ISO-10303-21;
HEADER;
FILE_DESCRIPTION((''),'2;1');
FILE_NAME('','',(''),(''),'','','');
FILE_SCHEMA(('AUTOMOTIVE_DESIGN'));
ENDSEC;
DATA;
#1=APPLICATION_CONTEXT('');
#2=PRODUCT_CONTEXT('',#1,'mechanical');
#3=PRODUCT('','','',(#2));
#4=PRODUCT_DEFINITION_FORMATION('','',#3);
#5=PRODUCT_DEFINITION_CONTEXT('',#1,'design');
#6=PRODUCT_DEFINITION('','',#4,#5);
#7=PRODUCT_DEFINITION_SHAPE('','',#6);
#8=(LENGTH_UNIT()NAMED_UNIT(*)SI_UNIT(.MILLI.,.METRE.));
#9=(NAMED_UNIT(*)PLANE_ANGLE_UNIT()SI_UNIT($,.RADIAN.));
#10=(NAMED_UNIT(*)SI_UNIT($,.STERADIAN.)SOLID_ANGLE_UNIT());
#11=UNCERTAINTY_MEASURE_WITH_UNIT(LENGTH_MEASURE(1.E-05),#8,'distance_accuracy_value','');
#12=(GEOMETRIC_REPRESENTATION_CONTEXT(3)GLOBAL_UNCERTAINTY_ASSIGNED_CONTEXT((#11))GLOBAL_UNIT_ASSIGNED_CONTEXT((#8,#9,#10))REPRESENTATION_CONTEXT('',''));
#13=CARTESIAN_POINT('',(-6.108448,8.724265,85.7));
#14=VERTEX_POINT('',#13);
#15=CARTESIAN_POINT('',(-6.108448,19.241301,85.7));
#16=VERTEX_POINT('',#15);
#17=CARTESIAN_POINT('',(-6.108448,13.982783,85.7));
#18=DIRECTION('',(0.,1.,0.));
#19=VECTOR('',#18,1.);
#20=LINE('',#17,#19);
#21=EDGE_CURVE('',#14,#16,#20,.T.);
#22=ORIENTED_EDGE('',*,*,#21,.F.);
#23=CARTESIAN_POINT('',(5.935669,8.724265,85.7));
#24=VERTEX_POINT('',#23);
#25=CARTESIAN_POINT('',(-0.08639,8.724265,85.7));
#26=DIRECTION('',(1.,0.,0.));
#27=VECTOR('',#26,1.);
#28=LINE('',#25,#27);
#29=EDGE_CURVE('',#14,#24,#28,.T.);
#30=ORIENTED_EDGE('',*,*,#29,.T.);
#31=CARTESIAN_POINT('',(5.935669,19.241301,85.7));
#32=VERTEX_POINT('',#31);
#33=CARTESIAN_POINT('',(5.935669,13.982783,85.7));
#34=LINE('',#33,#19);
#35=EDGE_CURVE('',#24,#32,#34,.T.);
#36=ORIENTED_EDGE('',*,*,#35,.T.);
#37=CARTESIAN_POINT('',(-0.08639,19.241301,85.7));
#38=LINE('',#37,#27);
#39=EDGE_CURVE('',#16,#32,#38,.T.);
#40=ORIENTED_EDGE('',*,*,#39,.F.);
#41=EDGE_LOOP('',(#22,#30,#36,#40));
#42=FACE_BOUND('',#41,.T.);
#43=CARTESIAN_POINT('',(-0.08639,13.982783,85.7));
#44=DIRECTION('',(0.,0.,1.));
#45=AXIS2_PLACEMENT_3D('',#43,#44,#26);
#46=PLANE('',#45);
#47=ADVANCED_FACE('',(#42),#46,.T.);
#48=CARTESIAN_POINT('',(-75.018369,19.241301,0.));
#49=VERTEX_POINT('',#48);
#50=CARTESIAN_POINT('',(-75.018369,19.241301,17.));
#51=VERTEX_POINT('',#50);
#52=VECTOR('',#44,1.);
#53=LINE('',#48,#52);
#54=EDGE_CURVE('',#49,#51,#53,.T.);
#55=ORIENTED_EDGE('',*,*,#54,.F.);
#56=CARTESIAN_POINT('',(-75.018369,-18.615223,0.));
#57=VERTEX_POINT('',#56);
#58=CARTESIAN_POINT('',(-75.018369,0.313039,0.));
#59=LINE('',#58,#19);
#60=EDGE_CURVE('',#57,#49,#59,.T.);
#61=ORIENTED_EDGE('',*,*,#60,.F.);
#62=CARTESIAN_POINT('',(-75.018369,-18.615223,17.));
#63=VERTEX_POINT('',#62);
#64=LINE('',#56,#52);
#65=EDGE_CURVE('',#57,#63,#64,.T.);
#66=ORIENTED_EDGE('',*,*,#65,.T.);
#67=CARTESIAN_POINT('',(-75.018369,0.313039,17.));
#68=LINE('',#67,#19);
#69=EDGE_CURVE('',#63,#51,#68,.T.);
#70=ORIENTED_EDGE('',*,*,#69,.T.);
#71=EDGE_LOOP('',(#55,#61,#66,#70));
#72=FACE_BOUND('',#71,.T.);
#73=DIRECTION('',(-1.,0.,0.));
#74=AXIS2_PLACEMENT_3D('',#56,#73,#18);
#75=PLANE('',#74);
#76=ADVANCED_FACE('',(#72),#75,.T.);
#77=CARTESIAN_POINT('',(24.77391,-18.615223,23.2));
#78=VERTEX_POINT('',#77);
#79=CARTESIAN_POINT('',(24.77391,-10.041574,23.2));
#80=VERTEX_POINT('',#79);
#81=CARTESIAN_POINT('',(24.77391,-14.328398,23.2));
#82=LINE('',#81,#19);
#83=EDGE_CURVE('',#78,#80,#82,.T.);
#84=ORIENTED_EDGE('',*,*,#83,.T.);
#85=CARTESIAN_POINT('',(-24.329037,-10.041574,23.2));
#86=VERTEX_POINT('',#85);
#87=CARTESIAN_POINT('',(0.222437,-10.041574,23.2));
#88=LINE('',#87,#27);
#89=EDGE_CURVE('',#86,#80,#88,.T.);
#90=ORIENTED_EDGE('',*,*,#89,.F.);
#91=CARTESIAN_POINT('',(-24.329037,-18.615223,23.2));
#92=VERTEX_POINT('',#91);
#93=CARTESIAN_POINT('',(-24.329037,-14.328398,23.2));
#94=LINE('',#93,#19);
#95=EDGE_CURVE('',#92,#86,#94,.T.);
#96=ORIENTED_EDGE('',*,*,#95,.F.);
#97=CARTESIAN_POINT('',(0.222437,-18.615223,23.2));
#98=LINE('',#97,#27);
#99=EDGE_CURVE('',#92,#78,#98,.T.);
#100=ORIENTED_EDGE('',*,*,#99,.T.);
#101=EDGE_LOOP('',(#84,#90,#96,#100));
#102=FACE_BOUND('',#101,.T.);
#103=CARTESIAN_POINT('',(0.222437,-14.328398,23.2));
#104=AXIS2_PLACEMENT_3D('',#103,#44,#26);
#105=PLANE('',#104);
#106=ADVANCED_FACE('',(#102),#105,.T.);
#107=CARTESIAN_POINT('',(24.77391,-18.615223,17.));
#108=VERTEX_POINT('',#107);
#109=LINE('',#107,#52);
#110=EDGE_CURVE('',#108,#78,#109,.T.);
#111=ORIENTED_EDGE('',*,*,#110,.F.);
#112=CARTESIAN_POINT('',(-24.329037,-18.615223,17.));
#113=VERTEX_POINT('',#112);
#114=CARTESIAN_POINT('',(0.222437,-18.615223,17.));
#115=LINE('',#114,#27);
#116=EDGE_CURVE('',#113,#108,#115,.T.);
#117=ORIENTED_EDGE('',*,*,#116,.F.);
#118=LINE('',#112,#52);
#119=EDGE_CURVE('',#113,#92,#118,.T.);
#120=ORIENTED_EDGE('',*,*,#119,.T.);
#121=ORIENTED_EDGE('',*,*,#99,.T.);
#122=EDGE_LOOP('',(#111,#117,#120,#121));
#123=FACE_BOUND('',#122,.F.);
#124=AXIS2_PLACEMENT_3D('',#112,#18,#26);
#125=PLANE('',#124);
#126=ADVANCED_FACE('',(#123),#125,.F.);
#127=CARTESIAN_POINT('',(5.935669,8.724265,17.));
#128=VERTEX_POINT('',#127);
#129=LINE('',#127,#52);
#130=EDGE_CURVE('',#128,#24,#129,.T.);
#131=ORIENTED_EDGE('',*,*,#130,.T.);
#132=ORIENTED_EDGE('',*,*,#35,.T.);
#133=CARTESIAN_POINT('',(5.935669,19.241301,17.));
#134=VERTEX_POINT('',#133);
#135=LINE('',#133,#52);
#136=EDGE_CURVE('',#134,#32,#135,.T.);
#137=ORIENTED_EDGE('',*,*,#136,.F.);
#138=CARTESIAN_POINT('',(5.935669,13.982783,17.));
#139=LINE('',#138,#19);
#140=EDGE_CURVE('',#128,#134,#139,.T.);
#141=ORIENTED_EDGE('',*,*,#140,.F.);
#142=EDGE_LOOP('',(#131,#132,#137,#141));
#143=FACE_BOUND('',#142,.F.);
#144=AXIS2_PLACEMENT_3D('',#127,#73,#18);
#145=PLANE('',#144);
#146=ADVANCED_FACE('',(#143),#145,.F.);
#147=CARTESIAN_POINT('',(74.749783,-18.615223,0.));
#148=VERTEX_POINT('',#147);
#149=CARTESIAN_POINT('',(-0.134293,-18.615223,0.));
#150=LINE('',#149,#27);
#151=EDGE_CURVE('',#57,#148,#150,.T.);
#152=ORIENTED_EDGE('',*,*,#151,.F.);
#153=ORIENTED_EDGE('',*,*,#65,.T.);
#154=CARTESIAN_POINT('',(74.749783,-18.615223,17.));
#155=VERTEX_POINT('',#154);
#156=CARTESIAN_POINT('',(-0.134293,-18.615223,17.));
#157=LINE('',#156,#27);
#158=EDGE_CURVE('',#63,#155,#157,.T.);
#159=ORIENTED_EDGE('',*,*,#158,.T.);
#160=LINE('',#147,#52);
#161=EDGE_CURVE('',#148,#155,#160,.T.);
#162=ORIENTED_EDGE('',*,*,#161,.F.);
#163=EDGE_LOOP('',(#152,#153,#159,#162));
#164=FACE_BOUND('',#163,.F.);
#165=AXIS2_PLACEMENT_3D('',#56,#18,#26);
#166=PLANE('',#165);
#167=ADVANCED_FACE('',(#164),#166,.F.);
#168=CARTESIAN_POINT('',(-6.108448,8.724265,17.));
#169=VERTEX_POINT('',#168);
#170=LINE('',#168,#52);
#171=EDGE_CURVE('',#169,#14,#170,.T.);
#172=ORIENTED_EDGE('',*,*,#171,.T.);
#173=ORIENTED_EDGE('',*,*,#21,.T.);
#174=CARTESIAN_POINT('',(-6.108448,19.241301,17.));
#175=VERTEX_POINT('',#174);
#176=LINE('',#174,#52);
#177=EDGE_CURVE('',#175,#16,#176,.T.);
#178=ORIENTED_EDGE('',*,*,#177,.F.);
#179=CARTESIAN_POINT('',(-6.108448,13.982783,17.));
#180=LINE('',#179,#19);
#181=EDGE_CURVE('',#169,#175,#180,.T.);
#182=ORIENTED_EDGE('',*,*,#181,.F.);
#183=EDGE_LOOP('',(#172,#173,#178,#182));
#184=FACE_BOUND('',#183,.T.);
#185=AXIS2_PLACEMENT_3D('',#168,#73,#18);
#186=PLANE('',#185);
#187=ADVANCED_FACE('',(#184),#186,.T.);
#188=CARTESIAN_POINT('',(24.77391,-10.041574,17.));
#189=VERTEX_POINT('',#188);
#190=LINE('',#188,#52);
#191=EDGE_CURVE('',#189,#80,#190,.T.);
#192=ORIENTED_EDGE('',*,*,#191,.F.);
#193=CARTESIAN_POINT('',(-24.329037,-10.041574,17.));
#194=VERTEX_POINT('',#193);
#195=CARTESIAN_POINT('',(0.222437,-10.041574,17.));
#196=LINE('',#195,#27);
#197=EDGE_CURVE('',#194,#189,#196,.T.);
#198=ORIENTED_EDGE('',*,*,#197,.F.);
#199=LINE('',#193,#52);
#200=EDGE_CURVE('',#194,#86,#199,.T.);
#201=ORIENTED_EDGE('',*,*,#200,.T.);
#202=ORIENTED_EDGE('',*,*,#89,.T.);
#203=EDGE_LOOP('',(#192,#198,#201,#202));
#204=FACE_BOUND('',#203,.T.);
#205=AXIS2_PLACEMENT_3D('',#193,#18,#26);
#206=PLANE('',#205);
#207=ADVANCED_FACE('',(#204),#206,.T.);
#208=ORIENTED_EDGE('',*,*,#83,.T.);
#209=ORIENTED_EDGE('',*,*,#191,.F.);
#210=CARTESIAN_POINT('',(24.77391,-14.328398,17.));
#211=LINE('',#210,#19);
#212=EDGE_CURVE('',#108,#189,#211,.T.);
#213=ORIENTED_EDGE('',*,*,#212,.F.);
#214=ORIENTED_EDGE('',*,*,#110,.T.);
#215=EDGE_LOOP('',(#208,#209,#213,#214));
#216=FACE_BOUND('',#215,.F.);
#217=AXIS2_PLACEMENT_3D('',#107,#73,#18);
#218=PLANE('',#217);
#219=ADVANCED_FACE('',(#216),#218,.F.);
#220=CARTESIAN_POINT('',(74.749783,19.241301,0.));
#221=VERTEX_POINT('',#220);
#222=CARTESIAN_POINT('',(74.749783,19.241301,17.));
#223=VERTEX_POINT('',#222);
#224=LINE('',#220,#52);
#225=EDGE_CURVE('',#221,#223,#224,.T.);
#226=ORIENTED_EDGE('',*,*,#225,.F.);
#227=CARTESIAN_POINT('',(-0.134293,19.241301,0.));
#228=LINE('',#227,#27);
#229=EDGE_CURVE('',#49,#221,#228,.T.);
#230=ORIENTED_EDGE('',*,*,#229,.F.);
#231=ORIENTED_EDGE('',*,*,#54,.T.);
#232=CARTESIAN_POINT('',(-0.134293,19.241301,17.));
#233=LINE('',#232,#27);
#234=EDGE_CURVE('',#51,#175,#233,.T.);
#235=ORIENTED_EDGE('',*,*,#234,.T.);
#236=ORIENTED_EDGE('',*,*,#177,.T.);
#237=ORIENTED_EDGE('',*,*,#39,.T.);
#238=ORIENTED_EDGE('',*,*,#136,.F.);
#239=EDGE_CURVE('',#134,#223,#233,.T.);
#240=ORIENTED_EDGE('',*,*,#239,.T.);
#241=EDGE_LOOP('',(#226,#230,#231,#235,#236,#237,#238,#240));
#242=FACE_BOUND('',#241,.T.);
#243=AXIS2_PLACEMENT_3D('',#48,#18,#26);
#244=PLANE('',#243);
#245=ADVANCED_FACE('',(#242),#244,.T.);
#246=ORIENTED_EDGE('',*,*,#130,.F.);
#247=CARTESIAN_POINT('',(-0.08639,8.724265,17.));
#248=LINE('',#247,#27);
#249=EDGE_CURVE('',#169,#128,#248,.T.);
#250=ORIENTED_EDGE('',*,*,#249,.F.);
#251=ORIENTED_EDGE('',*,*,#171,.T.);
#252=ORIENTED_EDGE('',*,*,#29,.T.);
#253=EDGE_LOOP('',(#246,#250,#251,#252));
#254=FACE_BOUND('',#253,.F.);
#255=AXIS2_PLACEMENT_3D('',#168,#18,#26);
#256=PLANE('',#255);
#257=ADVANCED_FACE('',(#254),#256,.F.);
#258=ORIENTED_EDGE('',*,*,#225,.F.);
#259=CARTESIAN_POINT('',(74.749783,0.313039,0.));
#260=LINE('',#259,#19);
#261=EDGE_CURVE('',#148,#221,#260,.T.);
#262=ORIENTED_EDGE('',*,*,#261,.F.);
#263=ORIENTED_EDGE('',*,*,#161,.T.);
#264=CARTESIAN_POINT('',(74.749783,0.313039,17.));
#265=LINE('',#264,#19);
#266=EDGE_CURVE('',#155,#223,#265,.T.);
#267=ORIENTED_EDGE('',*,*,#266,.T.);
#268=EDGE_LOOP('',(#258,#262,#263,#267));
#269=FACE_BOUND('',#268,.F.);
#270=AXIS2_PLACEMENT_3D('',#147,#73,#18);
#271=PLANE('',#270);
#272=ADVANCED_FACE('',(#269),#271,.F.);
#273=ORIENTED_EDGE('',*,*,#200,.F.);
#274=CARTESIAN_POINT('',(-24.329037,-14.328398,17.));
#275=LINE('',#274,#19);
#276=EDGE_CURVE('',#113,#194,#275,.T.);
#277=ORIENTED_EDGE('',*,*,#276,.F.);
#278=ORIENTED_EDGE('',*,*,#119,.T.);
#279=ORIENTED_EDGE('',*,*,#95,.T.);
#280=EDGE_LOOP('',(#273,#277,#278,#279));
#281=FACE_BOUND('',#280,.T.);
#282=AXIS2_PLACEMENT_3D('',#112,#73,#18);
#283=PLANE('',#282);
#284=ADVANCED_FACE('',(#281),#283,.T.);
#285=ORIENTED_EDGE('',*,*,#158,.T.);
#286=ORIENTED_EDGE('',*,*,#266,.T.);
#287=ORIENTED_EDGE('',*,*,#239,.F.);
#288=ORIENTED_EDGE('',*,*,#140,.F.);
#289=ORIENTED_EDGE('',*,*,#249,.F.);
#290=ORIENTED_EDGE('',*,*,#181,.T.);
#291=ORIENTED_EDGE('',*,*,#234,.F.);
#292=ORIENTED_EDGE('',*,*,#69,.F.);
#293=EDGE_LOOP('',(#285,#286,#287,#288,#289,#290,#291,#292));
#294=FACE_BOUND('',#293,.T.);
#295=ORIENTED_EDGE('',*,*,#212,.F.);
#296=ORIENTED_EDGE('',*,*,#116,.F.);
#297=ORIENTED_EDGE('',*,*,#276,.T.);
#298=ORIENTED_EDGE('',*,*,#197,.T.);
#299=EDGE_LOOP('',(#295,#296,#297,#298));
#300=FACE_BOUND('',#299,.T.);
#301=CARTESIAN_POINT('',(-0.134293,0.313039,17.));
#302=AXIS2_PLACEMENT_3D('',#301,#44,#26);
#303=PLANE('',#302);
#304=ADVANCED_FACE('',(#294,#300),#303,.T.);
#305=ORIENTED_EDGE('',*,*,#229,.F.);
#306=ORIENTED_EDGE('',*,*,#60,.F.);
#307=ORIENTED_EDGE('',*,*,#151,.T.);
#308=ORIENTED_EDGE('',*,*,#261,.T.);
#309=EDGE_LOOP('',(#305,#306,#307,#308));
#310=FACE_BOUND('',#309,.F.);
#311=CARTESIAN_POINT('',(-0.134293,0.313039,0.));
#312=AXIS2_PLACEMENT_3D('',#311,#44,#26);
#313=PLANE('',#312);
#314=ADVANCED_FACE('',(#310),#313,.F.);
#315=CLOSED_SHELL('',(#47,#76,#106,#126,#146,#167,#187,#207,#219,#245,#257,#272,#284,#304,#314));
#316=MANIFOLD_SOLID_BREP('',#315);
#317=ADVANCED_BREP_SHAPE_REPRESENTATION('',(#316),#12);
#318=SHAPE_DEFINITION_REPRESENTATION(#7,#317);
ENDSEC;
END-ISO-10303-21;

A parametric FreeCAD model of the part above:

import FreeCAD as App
import Part
import Sketcher

V = App.Vector
Q = App.Units.Quantity


def add_polygon(sketch, points):
    """Adds a closed chain of lines whose ends are joined by coincident constraints."""
    first, n = sketch.GeometryCount, len(points)
    for a, b in zip(points, points[1:] + points[:1]):
        sketch.addGeometry(Part.LineSegment(App.Vector(*a, 0), App.Vector(*b, 0)), False)
    for i in range(n):
        sketch.addConstraint(Sketcher.Constraint("Coincident", first + i, 2, first + (i + 1) % n, 1))

doc = App.newDocument("Part")
body = doc.addObject("PartDesign::Body", "Body")

sketch1 = body.newObject("Sketcher::SketchObject", "Sketch")
sketch1.AttachmentSupport = (doc.getObject("XY_Plane"), [""])
sketch1.MapMode = "FlatFace"
add_polygon(sketch1, [(-75, 19), (-75, -19), (75, -19), (75, 19)])
sketch1.addConstraint([
    Sketcher.Constraint("Vertical", 0),
    Sketcher.Constraint("Horizontal", 1),
    Sketcher.Constraint("Vertical", 2),
    Sketcher.Constraint("Horizontal", 3),
    Sketcher.Constraint("DistanceX", 1, 1, 1, 2, Q("149.768152 mm")),
    Sketcher.Constraint("DistanceY", -1, 1, 2, 2, Q("19.241301 mm")),
    Sketcher.Constraint("DistanceY", 0, 2, 0, 1, Q("37.856524 mm")),
    Sketcher.Constraint("DistanceX", 0, 2, -1, 1, Q("75.018369 mm")),
])
pad1 = body.newObject("PartDesign::Pad", "Pad")
pad1.Profile = sketch1
pad1.Length = 17

sketch2 = body.newObject("Sketcher::SketchObject", "Sketch001")
sketch2.AttachmentSupport = (doc.getObject("XY_Plane"), [""])
sketch2.MapMode = "FlatFace"
sketch2.AttachmentOffset = App.Placement(V(0, 0, 17), App.Rotation())
add_polygon(sketch2, [(-6, 19), (-6, 9), (6, 9), (6, 19)])
sketch2.addConstraint([
    Sketcher.Constraint("Vertical", 0),
    Sketcher.Constraint("Horizontal", 1),
    Sketcher.Constraint("Vertical", 2),
    Sketcher.Constraint("Horizontal", 3),
    Sketcher.Constraint("DistanceY", -1, 1, 2, 2, Q("19.241301 mm")),
    Sketcher.Constraint("DistanceX", 1, 1, 1, 2, Q("12.044117 mm")),
    Sketcher.Constraint("DistanceY", 0, 2, 0, 1, Q("10.517036 mm")),
    Sketcher.Constraint("DistanceX", 0, 2, -1, 1, Q("6.108448 mm")),
])
pad2 = body.newObject("PartDesign::Pad", "Pad001")
pad2.Profile = sketch2
pad2.Length = 68.7

sketch3 = body.newObject("Sketcher::SketchObject", "Sketch002")
sketch3.AttachmentSupport = (doc.getObject("XY_Plane"), [""])
sketch3.MapMode = "FlatFace"
sketch3.AttachmentOffset = App.Placement(V(0, 0, 17), App.Rotation())
add_polygon(sketch3, [(-24, -10), (-24, -19), (25, -19), (25, -10)])
sketch3.addConstraint([
    Sketcher.Constraint("Vertical", 0),
    Sketcher.Constraint("Horizontal", 1),
    Sketcher.Constraint("Vertical", 2),
    Sketcher.Constraint("Horizontal", 3),
    Sketcher.Constraint("DistanceY", 0, 2, 0, 1, Q("8.573649 mm")),
    Sketcher.Constraint("DistanceX", 1, 1, 1, 2, Q("49.102947 mm")),
    Sketcher.Constraint("DistanceX", -1, 1, 1, 2, Q("24.77391 mm")),
    Sketcher.Constraint("DistanceY", 0, 2, -1, 1, Q("18.615223 mm")),
])
pad3 = body.newObject("PartDesign::Pad", "Pad002")
pad3.Profile = sketch3
pad3.Length = 6.2

doc.recompute()
